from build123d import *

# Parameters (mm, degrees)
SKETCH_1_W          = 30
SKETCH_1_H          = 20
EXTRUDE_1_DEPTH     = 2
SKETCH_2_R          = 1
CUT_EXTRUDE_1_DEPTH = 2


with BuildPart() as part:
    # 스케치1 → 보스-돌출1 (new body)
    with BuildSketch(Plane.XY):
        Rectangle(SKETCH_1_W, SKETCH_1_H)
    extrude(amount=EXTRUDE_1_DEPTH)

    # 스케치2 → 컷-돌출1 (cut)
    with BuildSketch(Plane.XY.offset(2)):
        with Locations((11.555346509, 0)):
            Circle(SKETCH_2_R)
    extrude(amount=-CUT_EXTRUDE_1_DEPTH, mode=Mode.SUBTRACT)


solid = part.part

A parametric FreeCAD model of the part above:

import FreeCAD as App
import Part
import Sketcher

doc = App.newDocument("Part")
body = doc.addObject("PartDesign::Body", "Body")

sketch1 = body.newObject("Sketcher::SketchObject", "Sketch")
sketch1.AttachmentSupport = (doc.getObject("XY_Plane"), [""])
sketch1.MapMode = "FlatFace"
sketch1.addGeometry([
    Part.LineSegment(App.Vector(-15, 10, 0), App.Vector(-15, -10, 0)),
    Part.LineSegment(App.Vector(-15, -10, 0), App.Vector(15, -10, 0)),
    Part.LineSegment(App.Vector(15, -10, 0), App.Vector(15, 10, 0)),
    Part.LineSegment(App.Vector(15, 10, 0), App.Vector(-15, 10, 0)),
], False)
sketch1.addConstraint([
    Sketcher.Constraint("Coincident", 0, 2, 1, 1),
    Sketcher.Constraint("Coincident", 1, 2, 2, 1),
    Sketcher.Constraint("Coincident", 2, 2, 3, 1),
    Sketcher.Constraint("Coincident", 3, 2, 0, 1),
    Sketcher.Constraint("Vertical", 0),
    Sketcher.Constraint("Horizontal", 1),
    Sketcher.Constraint("Vertical", 2),
    Sketcher.Constraint("Horizontal", 3),
    Sketcher.Constraint("Symmetric", 0, 2, 2, 2, -1, 1),
    Sketcher.Constraint("DistanceX", 1, 1, 1, 2, 30.0),
    Sketcher.Constraint("DistanceY", 0, 2, 0, 1, 20.0),
])
pad1 = body.newObject("PartDesign::Pad", "Pad")
pad1.Profile = sketch1
pad1.Length = 2

sketch2 = body.newObject("Sketcher::SketchObject", "Sketch001")
sketch2.AttachmentSupport = (doc.getObject("XY_Plane"), [""])
sketch2.MapMode = "FlatFace"
sketch2.AttachmentOffset = App.Placement(App.Vector(0, 0, 2), App.Rotation())
sketch2.addGeometry(Part.Circle(App.Vector(11.6, 0, 0), App.Vector(0, 0, 1), 1), False)
sketch2.addConstraint([
    Sketcher.Constraint("PointOnObject", 0, 3, -1),
    Sketcher.Constraint("Diameter", 0, 2.0),
    Sketcher.Constraint("DistanceX", -1, 1, 0, 3, 11.555347),
])
pocket1 = body.newObject("PartDesign::Pocket", "Pocket")
pocket1.Profile = sketch2
pocket1.Length = 2

doc.recompute()
